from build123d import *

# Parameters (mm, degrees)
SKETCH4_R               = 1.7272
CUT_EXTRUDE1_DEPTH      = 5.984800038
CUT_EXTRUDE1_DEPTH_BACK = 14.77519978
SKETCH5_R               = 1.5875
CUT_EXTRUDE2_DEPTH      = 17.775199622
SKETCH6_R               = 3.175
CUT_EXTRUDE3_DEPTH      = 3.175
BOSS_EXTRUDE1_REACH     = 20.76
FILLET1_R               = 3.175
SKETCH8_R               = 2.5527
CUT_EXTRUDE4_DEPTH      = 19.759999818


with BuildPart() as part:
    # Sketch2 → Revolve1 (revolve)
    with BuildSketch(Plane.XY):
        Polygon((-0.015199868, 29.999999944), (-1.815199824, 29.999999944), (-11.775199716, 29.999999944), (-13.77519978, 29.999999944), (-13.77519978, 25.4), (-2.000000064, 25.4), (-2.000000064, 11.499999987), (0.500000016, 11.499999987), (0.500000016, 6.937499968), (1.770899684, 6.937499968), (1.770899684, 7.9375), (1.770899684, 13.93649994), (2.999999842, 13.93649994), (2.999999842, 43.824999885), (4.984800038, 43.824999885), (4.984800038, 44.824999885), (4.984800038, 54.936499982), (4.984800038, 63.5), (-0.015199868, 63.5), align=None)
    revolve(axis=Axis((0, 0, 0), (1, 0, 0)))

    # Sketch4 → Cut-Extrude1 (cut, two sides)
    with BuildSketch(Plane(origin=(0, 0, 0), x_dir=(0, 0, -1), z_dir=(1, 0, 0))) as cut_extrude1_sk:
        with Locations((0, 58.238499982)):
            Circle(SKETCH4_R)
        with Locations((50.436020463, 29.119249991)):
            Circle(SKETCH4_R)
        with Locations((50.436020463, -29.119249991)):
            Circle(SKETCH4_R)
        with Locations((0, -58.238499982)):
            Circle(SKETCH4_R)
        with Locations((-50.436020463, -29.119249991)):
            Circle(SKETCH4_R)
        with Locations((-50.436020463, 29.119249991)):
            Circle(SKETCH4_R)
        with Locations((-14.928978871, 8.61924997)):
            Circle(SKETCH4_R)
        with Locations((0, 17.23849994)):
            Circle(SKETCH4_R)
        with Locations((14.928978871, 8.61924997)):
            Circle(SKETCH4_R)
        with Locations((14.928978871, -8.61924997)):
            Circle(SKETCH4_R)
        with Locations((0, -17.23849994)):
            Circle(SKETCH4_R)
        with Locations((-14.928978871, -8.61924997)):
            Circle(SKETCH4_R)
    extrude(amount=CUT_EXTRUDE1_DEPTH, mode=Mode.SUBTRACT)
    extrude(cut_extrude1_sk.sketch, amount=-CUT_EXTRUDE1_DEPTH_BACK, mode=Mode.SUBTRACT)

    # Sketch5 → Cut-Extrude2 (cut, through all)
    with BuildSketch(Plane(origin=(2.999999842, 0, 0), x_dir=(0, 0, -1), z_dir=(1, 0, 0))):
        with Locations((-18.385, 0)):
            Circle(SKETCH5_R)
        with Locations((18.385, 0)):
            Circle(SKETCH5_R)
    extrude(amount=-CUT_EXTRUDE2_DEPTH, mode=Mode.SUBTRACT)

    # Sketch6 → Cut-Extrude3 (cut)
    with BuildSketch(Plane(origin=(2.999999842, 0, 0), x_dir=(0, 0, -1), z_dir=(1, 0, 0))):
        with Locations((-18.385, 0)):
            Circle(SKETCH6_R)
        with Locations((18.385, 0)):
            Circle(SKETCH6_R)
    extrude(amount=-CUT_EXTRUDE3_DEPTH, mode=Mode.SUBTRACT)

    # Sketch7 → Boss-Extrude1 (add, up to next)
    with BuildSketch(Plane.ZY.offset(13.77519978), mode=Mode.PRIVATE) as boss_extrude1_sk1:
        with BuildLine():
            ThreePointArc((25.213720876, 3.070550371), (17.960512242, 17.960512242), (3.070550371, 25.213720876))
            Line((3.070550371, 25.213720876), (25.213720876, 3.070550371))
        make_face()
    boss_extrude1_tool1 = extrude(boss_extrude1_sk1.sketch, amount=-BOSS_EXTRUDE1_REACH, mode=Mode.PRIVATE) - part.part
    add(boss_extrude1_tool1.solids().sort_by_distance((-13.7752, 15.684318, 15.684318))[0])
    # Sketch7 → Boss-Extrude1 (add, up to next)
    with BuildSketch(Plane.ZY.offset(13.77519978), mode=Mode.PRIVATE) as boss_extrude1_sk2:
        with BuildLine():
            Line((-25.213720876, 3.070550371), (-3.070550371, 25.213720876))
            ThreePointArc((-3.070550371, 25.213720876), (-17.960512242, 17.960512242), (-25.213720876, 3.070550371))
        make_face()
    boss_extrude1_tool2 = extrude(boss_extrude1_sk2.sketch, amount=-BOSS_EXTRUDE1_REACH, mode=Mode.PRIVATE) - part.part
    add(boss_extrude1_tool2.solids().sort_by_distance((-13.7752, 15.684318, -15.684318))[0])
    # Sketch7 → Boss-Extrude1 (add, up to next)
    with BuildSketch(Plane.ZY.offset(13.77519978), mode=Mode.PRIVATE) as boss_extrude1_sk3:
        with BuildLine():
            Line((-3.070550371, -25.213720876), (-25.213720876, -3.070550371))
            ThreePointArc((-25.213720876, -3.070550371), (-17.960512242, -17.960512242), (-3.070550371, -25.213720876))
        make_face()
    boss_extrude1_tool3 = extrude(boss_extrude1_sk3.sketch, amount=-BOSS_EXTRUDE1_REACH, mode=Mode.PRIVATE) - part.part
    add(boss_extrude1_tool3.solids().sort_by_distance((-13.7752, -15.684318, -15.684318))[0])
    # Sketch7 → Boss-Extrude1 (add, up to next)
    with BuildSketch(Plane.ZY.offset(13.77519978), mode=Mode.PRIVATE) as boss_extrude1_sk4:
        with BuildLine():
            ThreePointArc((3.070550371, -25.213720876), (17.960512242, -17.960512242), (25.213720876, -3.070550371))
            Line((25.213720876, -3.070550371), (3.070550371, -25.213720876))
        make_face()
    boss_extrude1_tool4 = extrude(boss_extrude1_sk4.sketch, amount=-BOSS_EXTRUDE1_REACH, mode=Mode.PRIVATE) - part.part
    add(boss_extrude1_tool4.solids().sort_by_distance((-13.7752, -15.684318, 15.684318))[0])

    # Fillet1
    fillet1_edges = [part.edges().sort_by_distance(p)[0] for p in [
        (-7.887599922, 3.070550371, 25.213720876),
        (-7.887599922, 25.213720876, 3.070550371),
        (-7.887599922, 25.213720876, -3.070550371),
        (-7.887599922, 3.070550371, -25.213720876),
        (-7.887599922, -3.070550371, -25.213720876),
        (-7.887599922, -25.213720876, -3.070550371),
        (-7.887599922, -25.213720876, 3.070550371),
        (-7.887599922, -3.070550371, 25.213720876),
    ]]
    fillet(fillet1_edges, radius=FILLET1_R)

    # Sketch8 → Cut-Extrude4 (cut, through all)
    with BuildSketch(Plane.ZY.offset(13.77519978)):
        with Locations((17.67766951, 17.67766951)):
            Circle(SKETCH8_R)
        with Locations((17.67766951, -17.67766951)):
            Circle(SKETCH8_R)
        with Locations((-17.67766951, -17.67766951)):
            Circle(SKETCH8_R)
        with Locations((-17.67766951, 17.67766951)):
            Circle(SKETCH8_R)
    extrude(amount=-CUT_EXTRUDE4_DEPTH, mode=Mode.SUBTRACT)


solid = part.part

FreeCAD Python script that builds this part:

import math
import FreeCAD as App
import Part
import Sketcher

V = App.Vector
Q = App.Units.Quantity


def edges_at(feature, points):
    """Names of the edges that pass closest to the given points."""
    edges = feature.Shape.Edges
    near = lambda p: min(range(len(edges)), key=lambda i: edges[i].distToShape(Part.Vertex(*p))[0])
    return sorted({f"Edge{near(p) + 1}" for p in points})


def add_polygon(sketch, points):
    """Adds a closed chain of lines whose ends are joined by coincident constraints."""
    first, n = sketch.GeometryCount, len(points)
    for a, b in zip(points, points[1:] + points[:1]):
        sketch.addGeometry(Part.LineSegment(App.Vector(*a, 0), App.Vector(*b, 0)), False)
    for i in range(n):
        sketch.addConstraint(Sketcher.Constraint("Coincident", first + i, 2, first + (i + 1) % n, 1))

doc = App.newDocument("Part")
body = doc.addObject("PartDesign::Body", "Body")

# Sketch on XY plane
sketch1 = body.newObject("Sketcher::SketchObject", "Sketch")
sketch1.AttachmentSupport = (doc.getObject("XY_Plane"), [""])
sketch1.MapMode = "FlatFace"
add_polygon(sketch1, [(-0.0152, 30), (-13.7752, 30), (-13.7752, 25.4), (-2, 25.4), (-2, 11.5), (0.5, 11.5), (0.5, 6.9375), (1.7709, 6.9375), (1.7709, 13.9365), (3, 13.9365), (3, 43.825), (4.9848, 43.825), (4.9848, 63.5), (-0.0152, 63.5)])  # lines 0-13
sketch1.addConstraint(Sketcher.Constraint("Horizontal", 0))
sketch1.addConstraint(Sketcher.Constraint("Vertical", 1))
sketch1.addConstraint(Sketcher.Constraint("Horizontal", 2))
sketch1.addConstraint(Sketcher.Constraint("Vertical", 3))
sketch1.addConstraint(Sketcher.Constraint("Horizontal", 4))
sketch1.addConstraint(Sketcher.Constraint("Vertical", 5))
sketch1.addConstraint(Sketcher.Constraint("Horizontal", 6))
sketch1.addConstraint(Sketcher.Constraint("Vertical", 7))
sketch1.addConstraint(Sketcher.Constraint("Horizontal", 8))
sketch1.addConstraint(Sketcher.Constraint("Vertical", 9))
sketch1.addConstraint(Sketcher.Constraint("Horizontal", 10))
sketch1.addConstraint(Sketcher.Constraint("Vertical", 11))
sketch1.addConstraint(Sketcher.Constraint("Horizontal", 12))
sketch1.addConstraint(Sketcher.Constraint("Vertical", 13))
sketch1.addConstraint(Sketcher.Constraint("DistanceX", 12, 2, 12, 1, 5.0))
sketch1.addConstraint(Sketcher.Constraint("DistanceX", 4, 1, 4, 2, 2.5))
sketch1.addConstraint(Sketcher.Constraint("DistanceY", 1, 2, 1, 1, 4.6))
sketch1.addConstraint(Sketcher.Constraint("DistanceY", 3, 2, 3, 1, 13.9))
sketch1.addConstraint(Sketcher.Constraint("DistanceY", 13, 2, 13, 1, 33.5))
sketch1.addConstraint(Sketcher.Constraint("DistanceY", -1, 1, 0, 2, 30.0))
sketch1.addConstraint(Sketcher.Constraint("DistanceX", 2, 2, -1, 1, 2.0))
sketch1.addConstraint(Sketcher.Constraint("DistanceX", -1, 1, 8, 2, 3.0))
sketch1.addConstraint(Sketcher.Constraint("DistanceX", 0, 2, 0, 1, 13.76))
sketch1.addConstraint(Sketcher.Constraint("DistanceY", 7, 1, 7, 2, 6.999))
sketch1.addConstraint(Sketcher.Constraint("DistanceY", 11, 1, 11, 2, 19.675))
sketch1.addConstraint(Sketcher.Constraint("DistanceX", 2, 1, 2, 2, 11.7752))
sketch1.addConstraint(Sketcher.Constraint("DistanceX", 6, 1, 6, 2, 1.2709))
sketch1.addConstraint(Sketcher.Constraint("DistanceY", 5, 2, 5, 1, 4.5625))
revolution = body.newObject("PartDesign::Revolution", "Revolution")
revolution.Profile = sketch1
revolution.ReferenceAxis = (sketch1, ["H_Axis"])
revolution.Angle = 360

# Sketch on YZ plane
sketch2 = body.newObject("Sketcher::SketchObject", "Sketch001")
sketch2.AttachmentSupport = (doc.getObject("YZ_Plane"), [""])
sketch2.MapMode = "FlatFace"
sketch2.addGeometry(Part.Circle(V(58.2385, 0, 0), V(0, 0, 1), 1.7272), False)
sketch2.addGeometry(Part.Circle(V(29.11925, -50.43602, 0), V(0, 0, 1), 1.7272), False)
sketch2.addGeometry(Part.Circle(V(-29.11925, -50.43602, 0), V(0, 0, 1), 1.7272), False)
sketch2.addGeometry(Part.Circle(V(-58.2385, 0, 0), V(0, 0, 1), 1.7272), False)
sketch2.addGeometry(Part.Circle(V(-29.11925, 50.43602, 0), V(0, 0, 1), 1.7272), False)
sketch2.addGeometry(Part.Circle(V(29.11925, 50.43602, 0), V(0, 0, 1), 1.7272), False)
sketch2.addGeometry(Part.Circle(V(8.61925, 14.928979, 0), V(0, 0, 1), 1.7272), False)
sketch2.addGeometry(Part.Circle(V(17.2385, 0, 0), V(0, 0, 1), 1.7272), False)
sketch2.addGeometry(Part.Circle(V(8.61925, -14.928979, 0), V(0, 0, 1), 1.7272), False)
sketch2.addGeometry(Part.Circle(V(-8.61925, -14.928979, 0), V(0, 0, 1), 1.7272), False)
sketch2.addGeometry(Part.Circle(V(-17.2385, 0, 0), V(0, 0, 1), 1.7272), False)
sketch2.addGeometry(Part.Circle(V(-8.61925, 14.928979, 0), V(0, 0, 1), 1.7272), False)
sketch2.addConstraint(Sketcher.Constraint("Equal", 0, 1))
sketch2.addConstraint(Sketcher.Constraint("Equal", 1, 2))
sketch2.addConstraint(Sketcher.Constraint("Equal", 2, 3))
sketch2.addConstraint(Sketcher.Constraint("Equal", 3, 4))
sketch2.addConstraint(Sketcher.Constraint("Equal", 4, 5))
sketch2.addConstraint(Sketcher.Constraint("Equal", 5, 6))
sketch2.addConstraint(Sketcher.Constraint("Equal", 6, 7))
sketch2.addConstraint(Sketcher.Constraint("Equal", 7, 8))
sketch2.addConstraint(Sketcher.Constraint("Equal", 8, 9))
sketch2.addConstraint(Sketcher.Constraint("Equal", 9, 10))
sketch2.addConstraint(Sketcher.Constraint("Equal", 10, 11))
sketch2.addConstraint(Sketcher.Constraint("Symmetric", 0, 3, 3, 3, -1, 1))
sketch2.addConstraint(Sketcher.Constraint("Symmetric", 1, 3, 4, 3, -1, 1))
sketch2.addConstraint(Sketcher.Constraint("Symmetric", 2, 3, 5, 3, -1, 1))
sketch2.addConstraint(Sketcher.Constraint("Symmetric", 6, 3, 9, 3, -1, 1))
sketch2.addConstraint(Sketcher.Constraint("Symmetric", 7, 3, 10, 3, -1, 1))
sketch2.addConstraint(Sketcher.Constraint("Symmetric", 8, 3, 11, 3, -1, 1))
sketch2.addConstraint(Sketcher.Constraint("Symmetric", 1, 3, 2, 3, -2))
sketch2.addConstraint(Sketcher.Constraint("Symmetric", 8, 3, 9, 3, -2))
sketch2.addConstraint(Sketcher.Constraint("PointOnObject", 0, 3, -1))
sketch2.addConstraint(Sketcher.Constraint("PointOnObject", 7, 3, -1))
sketch2.addConstraint(Sketcher.Constraint("DistanceX", 7, 3, 0, 3, 41.0))
sketch2.addConstraint(Sketcher.Constraint("Diameter", 0, 3.4544))
sketch2.addConstraint(Sketcher.Constraint("DistanceX", 6, 3, 5, 3, 20.5))
sketch2.addConstraint(Sketcher.Constraint("DistanceX", 3, 3, 0, 3, 116.477))
sketch2.addConstraint(Sketcher.Constraint("DistanceY", 1, 3, 6, 3, 65.364999))
sketch2.addConstraint(Sketcher.Constraint("DistanceX", 2, 3, 1, 3, 58.2385))
sketch2.addConstraint(Sketcher.Constraint("DistanceY", 1, 3, -1, 1, 50.43602))
pocket1 = body.newObject("PartDesign::Pocket", "Pocket")
pocket1.Profile = sketch2
pocket1.Type = "ThroughAll"
pocket1.Midplane = True

# Sketch on YZ plane
sketch3 = body.newObject("Sketcher::SketchObject", "Sketch002")
sketch3.AttachmentSupport = (doc.getObject("YZ_Plane"), [""])
sketch3.MapMode = "FlatFace"
sketch3.AttachmentOffset = App.Placement(V(0, 0, 3), App.Rotation())
sketch3.addGeometry(Part.Circle(V(0, 18.385, 0), V(0, 0, 1), 1.5875), False)
sketch3.addGeometry(Part.Circle(V(0, -18.385, 0), V(0, 0, 1), 1.5875), False)
sketch3.addConstraint(Sketcher.Constraint("Equal", 0, 1))
sketch3.addConstraint(Sketcher.Constraint("Symmetric", 0, 3, 1, 3, -1, 1))
sketch3.addConstraint(Sketcher.Constraint("PointOnObject", 0, 3, -2))
sketch3.addConstraint(Sketcher.Constraint("Diameter", 0, 3.175))
sketch3.addConstraint(Sketcher.Constraint("DistanceY", 1, 3, 0, 3, 36.77))
pocket2 = body.newObject("PartDesign::Pocket", "Pocket001")
pocket2.Profile = sketch3
pocket2.Type = "ThroughAll"

# Sketch on YZ plane
sketch4 = body.newObject("Sketcher::SketchObject", "Sketch003")
sketch4.AttachmentSupport = (doc.getObject("YZ_Plane"), [""])
sketch4.MapMode = "FlatFace"
sketch4.AttachmentOffset = App.Placement(V(0, 0, 3), App.Rotation())
sketch4.addGeometry(Part.Circle(V(0, 18.385, 0), V(0, 0, 1), 3.175), False)
sketch4.addGeometry(Part.Circle(V(0, -18.385, 0), V(0, 0, 1), 3.175), False)
sketch4.addConstraint(Sketcher.Constraint("Equal", 0, 1))
sketch4.addConstraint(Sketcher.Constraint("Symmetric", 0, 3, 1, 3, -1, 1))
sketch4.addConstraint(Sketcher.Constraint("PointOnObject", 0, 3, -2))
sketch4.addConstraint(Sketcher.Constraint("Diameter", 0, 6.35))
sketch4.addConstraint(Sketcher.Constraint("DistanceY", 1, 3, 0, 3, 36.77))
pocket3 = body.newObject("PartDesign::Pocket", "Pocket002")
pocket3.Profile = sketch4
pocket3.Length = 3.175

# Sketch on YZ plane
sketch5 = body.newObject("Sketcher::SketchObject", "Sketch004")
sketch5.AttachmentSupport = (doc.getObject("YZ_Plane"), [""])
sketch5.MapMode = "FlatFace"
sketch5.AttachmentOffset = App.Placement(V(0, 0, -13.7752), App.Rotation())
sketch5.addGeometry(Part.ArcOfCircle(Part.Circle(V(0, 0, 0), V(0, 0, 1), 25.4), math.radians(6.943343), math.radians(83.056657)), False)
sketch5.addGeometry(Part.LineSegment(V(25.213721, 3.07055, 0), V(3.07055, 25.213721, 0)), False)
sketch5.addConstraint(Sketcher.Constraint("Coincident", 0, 1, 1, 1))
sketch5.addConstraint(Sketcher.Constraint("Coincident", 1, 2, 0, 2))
sketch5.addConstraint(Sketcher.Constraint("Coincident", 0, 3, -1, 1))
sketch5.addConstraint(Sketcher.Constraint("Radius", 0, 25.4))
sketch5.addConstraint(Sketcher.Constraint("Angle", 1, Q("135 deg")))
sketch5.addConstraint(Sketcher.Constraint("DistanceX", -1, 1, 0, 1, 25.213721))
pad1 = body.newObject("PartDesign::Pad", "Pad")
pad1.Profile = sketch5
pad1.Type = "UpToFirst"

# Sketch on YZ plane
sketch6 = body.newObject("Sketcher::SketchObject", "Sketch005")
sketch6.AttachmentSupport = (doc.getObject("YZ_Plane"), [""])
sketch6.MapMode = "FlatFace"
sketch6.AttachmentOffset = App.Placement(V(0, 0, -13.7752), App.Rotation())
sketch6.addGeometry(Part.LineSegment(V(3.07055, -25.213721, 0), V(25.213721, -3.07055, 0)), False)
sketch6.addGeometry(Part.ArcOfCircle(Part.Circle(V(0, 0, 0), V(0, 0, 1), 25.4), math.radians(-83.056657), math.radians(-6.943343)), False)
sketch6.addConstraint(Sketcher.Constraint("Coincident", 0, 1, 1, 1))
sketch6.addConstraint(Sketcher.Constraint("Coincident", 1, 2, 0, 2))
sketch6.addConstraint(Sketcher.Constraint("Coincident", 1, 3, -1, 1))
sketch6.addConstraint(Sketcher.Constraint("Radius", 1, 25.4))
sketch6.addConstraint(Sketcher.Constraint("Angle", 0, Q("45 deg")))
sketch6.addConstraint(Sketcher.Constraint("DistanceX", -1, 1, 0, 1, 3.07055))
pad2 = body.newObject("PartDesign::Pad", "Pad001")
pad2.Profile = sketch6
pad2.Type = "UpToFirst"

# Sketch on YZ plane
sketch7 = body.newObject("Sketcher::SketchObject", "Sketch006")
sketch7.AttachmentSupport = (doc.getObject("YZ_Plane"), [""])
sketch7.MapMode = "FlatFace"
sketch7.AttachmentOffset = App.Placement(V(0, 0, -13.7752), App.Rotation())
sketch7.addGeometry(Part.LineSegment(V(-25.213721, -3.07055, 0), V(-3.07055, -25.213721, 0)), False)
sketch7.addGeometry(Part.ArcOfCircle(Part.Circle(V(0, 0, 0), V(0, 0, 1), 25.4), math.radians(-173.056657), math.radians(-96.943343)), False)
sketch7.addConstraint(Sketcher.Constraint("Coincident", 0, 1, 1, 1))
sketch7.addConstraint(Sketcher.Constraint("Coincident", 1, 2, 0, 2))
sketch7.addConstraint(Sketcher.Constraint("Coincident", 1, 3, -1, 1))
sketch7.addConstraint(Sketcher.Constraint("Radius", 1, 25.4))
sketch7.addConstraint(Sketcher.Constraint("Angle", 0, Q("-45 deg")))
sketch7.addConstraint(Sketcher.Constraint("DistanceX", 0, 1, -1, 1, 25.213721))
pad3 = body.newObject("PartDesign::Pad", "Pad002")
pad3.Profile = sketch7
pad3.Type = "UpToFirst"

# Sketch on YZ plane
sketch8 = body.newObject("Sketcher::SketchObject", "Sketch007")
sketch8.AttachmentSupport = (doc.getObject("YZ_Plane"), [""])
sketch8.MapMode = "FlatFace"
sketch8.AttachmentOffset = App.Placement(V(0, 0, -13.7752), App.Rotation())
sketch8.addGeometry(Part.ArcOfCircle(Part.Circle(V(0, 0, 0), V(0, 0, 1), 25.4), math.radians(96.943343), math.radians(173.056657)), False)
sketch8.addGeometry(Part.LineSegment(V(-3.07055, 25.213721, 0), V(-25.213721, 3.07055, 0)), False)
sketch8.addConstraint(Sketcher.Constraint("Coincident", 0, 1, 1, 1))
sketch8.addConstraint(Sketcher.Constraint("Coincident", 1, 2, 0, 2))
sketch8.addConstraint(Sketcher.Constraint("Coincident", 0, 3, -1, 1))
sketch8.addConstraint(Sketcher.Constraint("Radius", 0, 25.4))
sketch8.addConstraint(Sketcher.Constraint("Angle", 1, Q("-135 deg")))
sketch8.addConstraint(Sketcher.Constraint("DistanceX", 0, 1, -1, 1, 3.07055))
pad4 = body.newObject("PartDesign::Pad", "Pad003")
pad4.Profile = sketch8
pad4.Type = "UpToFirst"
doc.recompute()

fillet = body.newObject("PartDesign::Fillet", "Fillet")
fillet.Base = (pad4, edges_at(pad4, [
    (-7.888, 3.071, 25.214),
    (-7.888, 25.214, 3.071),
    (-7.888, 25.214, -3.071),
    (-7.888, 3.071, -25.214),
    (-7.888, -3.071, -25.214),
    (-7.888, -25.214, -3.071),
    (-7.888, -25.214, 3.071),
    (-7.888, -3.071, 25.214),
]))
fillet.Radius = 3.175

# Sketch on YZ plane
sketch9 = body.newObject("Sketcher::SketchObject", "Sketch008")
sketch9.AttachmentSupport = (doc.getObject("YZ_Plane"), [""])
sketch9.MapMode = "FlatFace"
sketch9.AttachmentOffset = App.Placement(V(0, 0, -13.7752), App.Rotation())
sketch9.addGeometry(Part.Circle(V(17.67767, 17.67767, 0), V(0, 0, 1), 2.5527), False)
sketch9.addGeometry(Part.Circle(V(-17.67767, 17.67767, 0), V(0, 0, 1), 2.5527), False)
sketch9.addGeometry(Part.Circle(V(-17.67767, -17.67767, 0), V(0, 0, 1), 2.5527), False)
sketch9.addGeometry(Part.Circle(V(17.67767, -17.67767, 0), V(0, 0, 1), 2.5527), False)
sketch9.addConstraint(Sketcher.Constraint("Equal", 0, 1))
sketch9.addConstraint(Sketcher.Constraint("Equal", 1, 2))
sketch9.addConstraint(Sketcher.Constraint("Equal", 2, 3))
sketch9.addConstraint(Sketcher.Constraint("Symmetric", 0, 3, 2, 3, -1, 1))
sketch9.addConstraint(Sketcher.Constraint("Symmetric", 1, 3, 3, 3, -1, 1))
sketch9.addConstraint(Sketcher.Constraint("Symmetric", 0, 3, 1, 3, -2))
sketch9.addConstraint(Sketcher.Constraint("Diameter", 0, 5.1054))
sketch9.addConstraint(Sketcher.Constraint("DistanceX", -1, 1, 0, 3, 17.67767))
sketch9.addConstraint(Sketcher.Constraint("DistanceY", -1, 1, 0, 3, 17.67767))
pocket4 = body.newObject("PartDesign::Pocket", "Pocket003")
pocket4.Profile = sketch9
pocket4.Type = "ThroughAll"
pocket4.Reversed = True

doc.recompute()
